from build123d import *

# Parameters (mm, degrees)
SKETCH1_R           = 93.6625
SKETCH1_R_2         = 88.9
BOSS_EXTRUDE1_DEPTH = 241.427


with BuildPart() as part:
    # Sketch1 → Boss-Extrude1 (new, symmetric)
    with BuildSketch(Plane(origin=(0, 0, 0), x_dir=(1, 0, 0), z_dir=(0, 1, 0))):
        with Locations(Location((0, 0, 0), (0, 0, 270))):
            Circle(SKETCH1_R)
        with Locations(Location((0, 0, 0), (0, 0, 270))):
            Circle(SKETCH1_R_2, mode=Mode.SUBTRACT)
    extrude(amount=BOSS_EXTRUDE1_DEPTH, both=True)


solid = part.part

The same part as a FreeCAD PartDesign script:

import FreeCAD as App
import Part
import Sketcher
from FreeCAD import Vector
Q = App.Units.Quantity

doc = App.newDocument("Part")
body = doc.addObject("PartDesign::Body", "Body")

# Sketch on XZ plane
sketch1 = body.newObject("Sketcher::SketchObject", "Sketch")
sketch1.AttachmentSupport = (doc.getObject("XZ_Plane"), [""])
sketch1.MapMode = "FlatFace"
sketch1.addGeometry([
    Part.Circle(Vector(0, 0, 0), Vector(0, 0, 1), 93.6625),
    Part.Circle(Vector(0, 0, 0), Vector(0, 0, 1), 88.9),
], False)
sketch1.addConstraint([
    Sketcher.Constraint("Coincident", 0, 3, -1, 1),
    Sketcher.Constraint("Coincident", 1, 3, -1, 1),
    Sketcher.Constraint("Diameter", 1, Q("7 in")),
    Sketcher.Constraint("Diameter", 0, Q("7.375 in")),
])
pad1 = body.newObject("PartDesign::Pad", "Pad")
pad1.Profile = sketch1
pad1.Length = Q("19.01 in")
pad1.Midplane = True

doc.recompute()
